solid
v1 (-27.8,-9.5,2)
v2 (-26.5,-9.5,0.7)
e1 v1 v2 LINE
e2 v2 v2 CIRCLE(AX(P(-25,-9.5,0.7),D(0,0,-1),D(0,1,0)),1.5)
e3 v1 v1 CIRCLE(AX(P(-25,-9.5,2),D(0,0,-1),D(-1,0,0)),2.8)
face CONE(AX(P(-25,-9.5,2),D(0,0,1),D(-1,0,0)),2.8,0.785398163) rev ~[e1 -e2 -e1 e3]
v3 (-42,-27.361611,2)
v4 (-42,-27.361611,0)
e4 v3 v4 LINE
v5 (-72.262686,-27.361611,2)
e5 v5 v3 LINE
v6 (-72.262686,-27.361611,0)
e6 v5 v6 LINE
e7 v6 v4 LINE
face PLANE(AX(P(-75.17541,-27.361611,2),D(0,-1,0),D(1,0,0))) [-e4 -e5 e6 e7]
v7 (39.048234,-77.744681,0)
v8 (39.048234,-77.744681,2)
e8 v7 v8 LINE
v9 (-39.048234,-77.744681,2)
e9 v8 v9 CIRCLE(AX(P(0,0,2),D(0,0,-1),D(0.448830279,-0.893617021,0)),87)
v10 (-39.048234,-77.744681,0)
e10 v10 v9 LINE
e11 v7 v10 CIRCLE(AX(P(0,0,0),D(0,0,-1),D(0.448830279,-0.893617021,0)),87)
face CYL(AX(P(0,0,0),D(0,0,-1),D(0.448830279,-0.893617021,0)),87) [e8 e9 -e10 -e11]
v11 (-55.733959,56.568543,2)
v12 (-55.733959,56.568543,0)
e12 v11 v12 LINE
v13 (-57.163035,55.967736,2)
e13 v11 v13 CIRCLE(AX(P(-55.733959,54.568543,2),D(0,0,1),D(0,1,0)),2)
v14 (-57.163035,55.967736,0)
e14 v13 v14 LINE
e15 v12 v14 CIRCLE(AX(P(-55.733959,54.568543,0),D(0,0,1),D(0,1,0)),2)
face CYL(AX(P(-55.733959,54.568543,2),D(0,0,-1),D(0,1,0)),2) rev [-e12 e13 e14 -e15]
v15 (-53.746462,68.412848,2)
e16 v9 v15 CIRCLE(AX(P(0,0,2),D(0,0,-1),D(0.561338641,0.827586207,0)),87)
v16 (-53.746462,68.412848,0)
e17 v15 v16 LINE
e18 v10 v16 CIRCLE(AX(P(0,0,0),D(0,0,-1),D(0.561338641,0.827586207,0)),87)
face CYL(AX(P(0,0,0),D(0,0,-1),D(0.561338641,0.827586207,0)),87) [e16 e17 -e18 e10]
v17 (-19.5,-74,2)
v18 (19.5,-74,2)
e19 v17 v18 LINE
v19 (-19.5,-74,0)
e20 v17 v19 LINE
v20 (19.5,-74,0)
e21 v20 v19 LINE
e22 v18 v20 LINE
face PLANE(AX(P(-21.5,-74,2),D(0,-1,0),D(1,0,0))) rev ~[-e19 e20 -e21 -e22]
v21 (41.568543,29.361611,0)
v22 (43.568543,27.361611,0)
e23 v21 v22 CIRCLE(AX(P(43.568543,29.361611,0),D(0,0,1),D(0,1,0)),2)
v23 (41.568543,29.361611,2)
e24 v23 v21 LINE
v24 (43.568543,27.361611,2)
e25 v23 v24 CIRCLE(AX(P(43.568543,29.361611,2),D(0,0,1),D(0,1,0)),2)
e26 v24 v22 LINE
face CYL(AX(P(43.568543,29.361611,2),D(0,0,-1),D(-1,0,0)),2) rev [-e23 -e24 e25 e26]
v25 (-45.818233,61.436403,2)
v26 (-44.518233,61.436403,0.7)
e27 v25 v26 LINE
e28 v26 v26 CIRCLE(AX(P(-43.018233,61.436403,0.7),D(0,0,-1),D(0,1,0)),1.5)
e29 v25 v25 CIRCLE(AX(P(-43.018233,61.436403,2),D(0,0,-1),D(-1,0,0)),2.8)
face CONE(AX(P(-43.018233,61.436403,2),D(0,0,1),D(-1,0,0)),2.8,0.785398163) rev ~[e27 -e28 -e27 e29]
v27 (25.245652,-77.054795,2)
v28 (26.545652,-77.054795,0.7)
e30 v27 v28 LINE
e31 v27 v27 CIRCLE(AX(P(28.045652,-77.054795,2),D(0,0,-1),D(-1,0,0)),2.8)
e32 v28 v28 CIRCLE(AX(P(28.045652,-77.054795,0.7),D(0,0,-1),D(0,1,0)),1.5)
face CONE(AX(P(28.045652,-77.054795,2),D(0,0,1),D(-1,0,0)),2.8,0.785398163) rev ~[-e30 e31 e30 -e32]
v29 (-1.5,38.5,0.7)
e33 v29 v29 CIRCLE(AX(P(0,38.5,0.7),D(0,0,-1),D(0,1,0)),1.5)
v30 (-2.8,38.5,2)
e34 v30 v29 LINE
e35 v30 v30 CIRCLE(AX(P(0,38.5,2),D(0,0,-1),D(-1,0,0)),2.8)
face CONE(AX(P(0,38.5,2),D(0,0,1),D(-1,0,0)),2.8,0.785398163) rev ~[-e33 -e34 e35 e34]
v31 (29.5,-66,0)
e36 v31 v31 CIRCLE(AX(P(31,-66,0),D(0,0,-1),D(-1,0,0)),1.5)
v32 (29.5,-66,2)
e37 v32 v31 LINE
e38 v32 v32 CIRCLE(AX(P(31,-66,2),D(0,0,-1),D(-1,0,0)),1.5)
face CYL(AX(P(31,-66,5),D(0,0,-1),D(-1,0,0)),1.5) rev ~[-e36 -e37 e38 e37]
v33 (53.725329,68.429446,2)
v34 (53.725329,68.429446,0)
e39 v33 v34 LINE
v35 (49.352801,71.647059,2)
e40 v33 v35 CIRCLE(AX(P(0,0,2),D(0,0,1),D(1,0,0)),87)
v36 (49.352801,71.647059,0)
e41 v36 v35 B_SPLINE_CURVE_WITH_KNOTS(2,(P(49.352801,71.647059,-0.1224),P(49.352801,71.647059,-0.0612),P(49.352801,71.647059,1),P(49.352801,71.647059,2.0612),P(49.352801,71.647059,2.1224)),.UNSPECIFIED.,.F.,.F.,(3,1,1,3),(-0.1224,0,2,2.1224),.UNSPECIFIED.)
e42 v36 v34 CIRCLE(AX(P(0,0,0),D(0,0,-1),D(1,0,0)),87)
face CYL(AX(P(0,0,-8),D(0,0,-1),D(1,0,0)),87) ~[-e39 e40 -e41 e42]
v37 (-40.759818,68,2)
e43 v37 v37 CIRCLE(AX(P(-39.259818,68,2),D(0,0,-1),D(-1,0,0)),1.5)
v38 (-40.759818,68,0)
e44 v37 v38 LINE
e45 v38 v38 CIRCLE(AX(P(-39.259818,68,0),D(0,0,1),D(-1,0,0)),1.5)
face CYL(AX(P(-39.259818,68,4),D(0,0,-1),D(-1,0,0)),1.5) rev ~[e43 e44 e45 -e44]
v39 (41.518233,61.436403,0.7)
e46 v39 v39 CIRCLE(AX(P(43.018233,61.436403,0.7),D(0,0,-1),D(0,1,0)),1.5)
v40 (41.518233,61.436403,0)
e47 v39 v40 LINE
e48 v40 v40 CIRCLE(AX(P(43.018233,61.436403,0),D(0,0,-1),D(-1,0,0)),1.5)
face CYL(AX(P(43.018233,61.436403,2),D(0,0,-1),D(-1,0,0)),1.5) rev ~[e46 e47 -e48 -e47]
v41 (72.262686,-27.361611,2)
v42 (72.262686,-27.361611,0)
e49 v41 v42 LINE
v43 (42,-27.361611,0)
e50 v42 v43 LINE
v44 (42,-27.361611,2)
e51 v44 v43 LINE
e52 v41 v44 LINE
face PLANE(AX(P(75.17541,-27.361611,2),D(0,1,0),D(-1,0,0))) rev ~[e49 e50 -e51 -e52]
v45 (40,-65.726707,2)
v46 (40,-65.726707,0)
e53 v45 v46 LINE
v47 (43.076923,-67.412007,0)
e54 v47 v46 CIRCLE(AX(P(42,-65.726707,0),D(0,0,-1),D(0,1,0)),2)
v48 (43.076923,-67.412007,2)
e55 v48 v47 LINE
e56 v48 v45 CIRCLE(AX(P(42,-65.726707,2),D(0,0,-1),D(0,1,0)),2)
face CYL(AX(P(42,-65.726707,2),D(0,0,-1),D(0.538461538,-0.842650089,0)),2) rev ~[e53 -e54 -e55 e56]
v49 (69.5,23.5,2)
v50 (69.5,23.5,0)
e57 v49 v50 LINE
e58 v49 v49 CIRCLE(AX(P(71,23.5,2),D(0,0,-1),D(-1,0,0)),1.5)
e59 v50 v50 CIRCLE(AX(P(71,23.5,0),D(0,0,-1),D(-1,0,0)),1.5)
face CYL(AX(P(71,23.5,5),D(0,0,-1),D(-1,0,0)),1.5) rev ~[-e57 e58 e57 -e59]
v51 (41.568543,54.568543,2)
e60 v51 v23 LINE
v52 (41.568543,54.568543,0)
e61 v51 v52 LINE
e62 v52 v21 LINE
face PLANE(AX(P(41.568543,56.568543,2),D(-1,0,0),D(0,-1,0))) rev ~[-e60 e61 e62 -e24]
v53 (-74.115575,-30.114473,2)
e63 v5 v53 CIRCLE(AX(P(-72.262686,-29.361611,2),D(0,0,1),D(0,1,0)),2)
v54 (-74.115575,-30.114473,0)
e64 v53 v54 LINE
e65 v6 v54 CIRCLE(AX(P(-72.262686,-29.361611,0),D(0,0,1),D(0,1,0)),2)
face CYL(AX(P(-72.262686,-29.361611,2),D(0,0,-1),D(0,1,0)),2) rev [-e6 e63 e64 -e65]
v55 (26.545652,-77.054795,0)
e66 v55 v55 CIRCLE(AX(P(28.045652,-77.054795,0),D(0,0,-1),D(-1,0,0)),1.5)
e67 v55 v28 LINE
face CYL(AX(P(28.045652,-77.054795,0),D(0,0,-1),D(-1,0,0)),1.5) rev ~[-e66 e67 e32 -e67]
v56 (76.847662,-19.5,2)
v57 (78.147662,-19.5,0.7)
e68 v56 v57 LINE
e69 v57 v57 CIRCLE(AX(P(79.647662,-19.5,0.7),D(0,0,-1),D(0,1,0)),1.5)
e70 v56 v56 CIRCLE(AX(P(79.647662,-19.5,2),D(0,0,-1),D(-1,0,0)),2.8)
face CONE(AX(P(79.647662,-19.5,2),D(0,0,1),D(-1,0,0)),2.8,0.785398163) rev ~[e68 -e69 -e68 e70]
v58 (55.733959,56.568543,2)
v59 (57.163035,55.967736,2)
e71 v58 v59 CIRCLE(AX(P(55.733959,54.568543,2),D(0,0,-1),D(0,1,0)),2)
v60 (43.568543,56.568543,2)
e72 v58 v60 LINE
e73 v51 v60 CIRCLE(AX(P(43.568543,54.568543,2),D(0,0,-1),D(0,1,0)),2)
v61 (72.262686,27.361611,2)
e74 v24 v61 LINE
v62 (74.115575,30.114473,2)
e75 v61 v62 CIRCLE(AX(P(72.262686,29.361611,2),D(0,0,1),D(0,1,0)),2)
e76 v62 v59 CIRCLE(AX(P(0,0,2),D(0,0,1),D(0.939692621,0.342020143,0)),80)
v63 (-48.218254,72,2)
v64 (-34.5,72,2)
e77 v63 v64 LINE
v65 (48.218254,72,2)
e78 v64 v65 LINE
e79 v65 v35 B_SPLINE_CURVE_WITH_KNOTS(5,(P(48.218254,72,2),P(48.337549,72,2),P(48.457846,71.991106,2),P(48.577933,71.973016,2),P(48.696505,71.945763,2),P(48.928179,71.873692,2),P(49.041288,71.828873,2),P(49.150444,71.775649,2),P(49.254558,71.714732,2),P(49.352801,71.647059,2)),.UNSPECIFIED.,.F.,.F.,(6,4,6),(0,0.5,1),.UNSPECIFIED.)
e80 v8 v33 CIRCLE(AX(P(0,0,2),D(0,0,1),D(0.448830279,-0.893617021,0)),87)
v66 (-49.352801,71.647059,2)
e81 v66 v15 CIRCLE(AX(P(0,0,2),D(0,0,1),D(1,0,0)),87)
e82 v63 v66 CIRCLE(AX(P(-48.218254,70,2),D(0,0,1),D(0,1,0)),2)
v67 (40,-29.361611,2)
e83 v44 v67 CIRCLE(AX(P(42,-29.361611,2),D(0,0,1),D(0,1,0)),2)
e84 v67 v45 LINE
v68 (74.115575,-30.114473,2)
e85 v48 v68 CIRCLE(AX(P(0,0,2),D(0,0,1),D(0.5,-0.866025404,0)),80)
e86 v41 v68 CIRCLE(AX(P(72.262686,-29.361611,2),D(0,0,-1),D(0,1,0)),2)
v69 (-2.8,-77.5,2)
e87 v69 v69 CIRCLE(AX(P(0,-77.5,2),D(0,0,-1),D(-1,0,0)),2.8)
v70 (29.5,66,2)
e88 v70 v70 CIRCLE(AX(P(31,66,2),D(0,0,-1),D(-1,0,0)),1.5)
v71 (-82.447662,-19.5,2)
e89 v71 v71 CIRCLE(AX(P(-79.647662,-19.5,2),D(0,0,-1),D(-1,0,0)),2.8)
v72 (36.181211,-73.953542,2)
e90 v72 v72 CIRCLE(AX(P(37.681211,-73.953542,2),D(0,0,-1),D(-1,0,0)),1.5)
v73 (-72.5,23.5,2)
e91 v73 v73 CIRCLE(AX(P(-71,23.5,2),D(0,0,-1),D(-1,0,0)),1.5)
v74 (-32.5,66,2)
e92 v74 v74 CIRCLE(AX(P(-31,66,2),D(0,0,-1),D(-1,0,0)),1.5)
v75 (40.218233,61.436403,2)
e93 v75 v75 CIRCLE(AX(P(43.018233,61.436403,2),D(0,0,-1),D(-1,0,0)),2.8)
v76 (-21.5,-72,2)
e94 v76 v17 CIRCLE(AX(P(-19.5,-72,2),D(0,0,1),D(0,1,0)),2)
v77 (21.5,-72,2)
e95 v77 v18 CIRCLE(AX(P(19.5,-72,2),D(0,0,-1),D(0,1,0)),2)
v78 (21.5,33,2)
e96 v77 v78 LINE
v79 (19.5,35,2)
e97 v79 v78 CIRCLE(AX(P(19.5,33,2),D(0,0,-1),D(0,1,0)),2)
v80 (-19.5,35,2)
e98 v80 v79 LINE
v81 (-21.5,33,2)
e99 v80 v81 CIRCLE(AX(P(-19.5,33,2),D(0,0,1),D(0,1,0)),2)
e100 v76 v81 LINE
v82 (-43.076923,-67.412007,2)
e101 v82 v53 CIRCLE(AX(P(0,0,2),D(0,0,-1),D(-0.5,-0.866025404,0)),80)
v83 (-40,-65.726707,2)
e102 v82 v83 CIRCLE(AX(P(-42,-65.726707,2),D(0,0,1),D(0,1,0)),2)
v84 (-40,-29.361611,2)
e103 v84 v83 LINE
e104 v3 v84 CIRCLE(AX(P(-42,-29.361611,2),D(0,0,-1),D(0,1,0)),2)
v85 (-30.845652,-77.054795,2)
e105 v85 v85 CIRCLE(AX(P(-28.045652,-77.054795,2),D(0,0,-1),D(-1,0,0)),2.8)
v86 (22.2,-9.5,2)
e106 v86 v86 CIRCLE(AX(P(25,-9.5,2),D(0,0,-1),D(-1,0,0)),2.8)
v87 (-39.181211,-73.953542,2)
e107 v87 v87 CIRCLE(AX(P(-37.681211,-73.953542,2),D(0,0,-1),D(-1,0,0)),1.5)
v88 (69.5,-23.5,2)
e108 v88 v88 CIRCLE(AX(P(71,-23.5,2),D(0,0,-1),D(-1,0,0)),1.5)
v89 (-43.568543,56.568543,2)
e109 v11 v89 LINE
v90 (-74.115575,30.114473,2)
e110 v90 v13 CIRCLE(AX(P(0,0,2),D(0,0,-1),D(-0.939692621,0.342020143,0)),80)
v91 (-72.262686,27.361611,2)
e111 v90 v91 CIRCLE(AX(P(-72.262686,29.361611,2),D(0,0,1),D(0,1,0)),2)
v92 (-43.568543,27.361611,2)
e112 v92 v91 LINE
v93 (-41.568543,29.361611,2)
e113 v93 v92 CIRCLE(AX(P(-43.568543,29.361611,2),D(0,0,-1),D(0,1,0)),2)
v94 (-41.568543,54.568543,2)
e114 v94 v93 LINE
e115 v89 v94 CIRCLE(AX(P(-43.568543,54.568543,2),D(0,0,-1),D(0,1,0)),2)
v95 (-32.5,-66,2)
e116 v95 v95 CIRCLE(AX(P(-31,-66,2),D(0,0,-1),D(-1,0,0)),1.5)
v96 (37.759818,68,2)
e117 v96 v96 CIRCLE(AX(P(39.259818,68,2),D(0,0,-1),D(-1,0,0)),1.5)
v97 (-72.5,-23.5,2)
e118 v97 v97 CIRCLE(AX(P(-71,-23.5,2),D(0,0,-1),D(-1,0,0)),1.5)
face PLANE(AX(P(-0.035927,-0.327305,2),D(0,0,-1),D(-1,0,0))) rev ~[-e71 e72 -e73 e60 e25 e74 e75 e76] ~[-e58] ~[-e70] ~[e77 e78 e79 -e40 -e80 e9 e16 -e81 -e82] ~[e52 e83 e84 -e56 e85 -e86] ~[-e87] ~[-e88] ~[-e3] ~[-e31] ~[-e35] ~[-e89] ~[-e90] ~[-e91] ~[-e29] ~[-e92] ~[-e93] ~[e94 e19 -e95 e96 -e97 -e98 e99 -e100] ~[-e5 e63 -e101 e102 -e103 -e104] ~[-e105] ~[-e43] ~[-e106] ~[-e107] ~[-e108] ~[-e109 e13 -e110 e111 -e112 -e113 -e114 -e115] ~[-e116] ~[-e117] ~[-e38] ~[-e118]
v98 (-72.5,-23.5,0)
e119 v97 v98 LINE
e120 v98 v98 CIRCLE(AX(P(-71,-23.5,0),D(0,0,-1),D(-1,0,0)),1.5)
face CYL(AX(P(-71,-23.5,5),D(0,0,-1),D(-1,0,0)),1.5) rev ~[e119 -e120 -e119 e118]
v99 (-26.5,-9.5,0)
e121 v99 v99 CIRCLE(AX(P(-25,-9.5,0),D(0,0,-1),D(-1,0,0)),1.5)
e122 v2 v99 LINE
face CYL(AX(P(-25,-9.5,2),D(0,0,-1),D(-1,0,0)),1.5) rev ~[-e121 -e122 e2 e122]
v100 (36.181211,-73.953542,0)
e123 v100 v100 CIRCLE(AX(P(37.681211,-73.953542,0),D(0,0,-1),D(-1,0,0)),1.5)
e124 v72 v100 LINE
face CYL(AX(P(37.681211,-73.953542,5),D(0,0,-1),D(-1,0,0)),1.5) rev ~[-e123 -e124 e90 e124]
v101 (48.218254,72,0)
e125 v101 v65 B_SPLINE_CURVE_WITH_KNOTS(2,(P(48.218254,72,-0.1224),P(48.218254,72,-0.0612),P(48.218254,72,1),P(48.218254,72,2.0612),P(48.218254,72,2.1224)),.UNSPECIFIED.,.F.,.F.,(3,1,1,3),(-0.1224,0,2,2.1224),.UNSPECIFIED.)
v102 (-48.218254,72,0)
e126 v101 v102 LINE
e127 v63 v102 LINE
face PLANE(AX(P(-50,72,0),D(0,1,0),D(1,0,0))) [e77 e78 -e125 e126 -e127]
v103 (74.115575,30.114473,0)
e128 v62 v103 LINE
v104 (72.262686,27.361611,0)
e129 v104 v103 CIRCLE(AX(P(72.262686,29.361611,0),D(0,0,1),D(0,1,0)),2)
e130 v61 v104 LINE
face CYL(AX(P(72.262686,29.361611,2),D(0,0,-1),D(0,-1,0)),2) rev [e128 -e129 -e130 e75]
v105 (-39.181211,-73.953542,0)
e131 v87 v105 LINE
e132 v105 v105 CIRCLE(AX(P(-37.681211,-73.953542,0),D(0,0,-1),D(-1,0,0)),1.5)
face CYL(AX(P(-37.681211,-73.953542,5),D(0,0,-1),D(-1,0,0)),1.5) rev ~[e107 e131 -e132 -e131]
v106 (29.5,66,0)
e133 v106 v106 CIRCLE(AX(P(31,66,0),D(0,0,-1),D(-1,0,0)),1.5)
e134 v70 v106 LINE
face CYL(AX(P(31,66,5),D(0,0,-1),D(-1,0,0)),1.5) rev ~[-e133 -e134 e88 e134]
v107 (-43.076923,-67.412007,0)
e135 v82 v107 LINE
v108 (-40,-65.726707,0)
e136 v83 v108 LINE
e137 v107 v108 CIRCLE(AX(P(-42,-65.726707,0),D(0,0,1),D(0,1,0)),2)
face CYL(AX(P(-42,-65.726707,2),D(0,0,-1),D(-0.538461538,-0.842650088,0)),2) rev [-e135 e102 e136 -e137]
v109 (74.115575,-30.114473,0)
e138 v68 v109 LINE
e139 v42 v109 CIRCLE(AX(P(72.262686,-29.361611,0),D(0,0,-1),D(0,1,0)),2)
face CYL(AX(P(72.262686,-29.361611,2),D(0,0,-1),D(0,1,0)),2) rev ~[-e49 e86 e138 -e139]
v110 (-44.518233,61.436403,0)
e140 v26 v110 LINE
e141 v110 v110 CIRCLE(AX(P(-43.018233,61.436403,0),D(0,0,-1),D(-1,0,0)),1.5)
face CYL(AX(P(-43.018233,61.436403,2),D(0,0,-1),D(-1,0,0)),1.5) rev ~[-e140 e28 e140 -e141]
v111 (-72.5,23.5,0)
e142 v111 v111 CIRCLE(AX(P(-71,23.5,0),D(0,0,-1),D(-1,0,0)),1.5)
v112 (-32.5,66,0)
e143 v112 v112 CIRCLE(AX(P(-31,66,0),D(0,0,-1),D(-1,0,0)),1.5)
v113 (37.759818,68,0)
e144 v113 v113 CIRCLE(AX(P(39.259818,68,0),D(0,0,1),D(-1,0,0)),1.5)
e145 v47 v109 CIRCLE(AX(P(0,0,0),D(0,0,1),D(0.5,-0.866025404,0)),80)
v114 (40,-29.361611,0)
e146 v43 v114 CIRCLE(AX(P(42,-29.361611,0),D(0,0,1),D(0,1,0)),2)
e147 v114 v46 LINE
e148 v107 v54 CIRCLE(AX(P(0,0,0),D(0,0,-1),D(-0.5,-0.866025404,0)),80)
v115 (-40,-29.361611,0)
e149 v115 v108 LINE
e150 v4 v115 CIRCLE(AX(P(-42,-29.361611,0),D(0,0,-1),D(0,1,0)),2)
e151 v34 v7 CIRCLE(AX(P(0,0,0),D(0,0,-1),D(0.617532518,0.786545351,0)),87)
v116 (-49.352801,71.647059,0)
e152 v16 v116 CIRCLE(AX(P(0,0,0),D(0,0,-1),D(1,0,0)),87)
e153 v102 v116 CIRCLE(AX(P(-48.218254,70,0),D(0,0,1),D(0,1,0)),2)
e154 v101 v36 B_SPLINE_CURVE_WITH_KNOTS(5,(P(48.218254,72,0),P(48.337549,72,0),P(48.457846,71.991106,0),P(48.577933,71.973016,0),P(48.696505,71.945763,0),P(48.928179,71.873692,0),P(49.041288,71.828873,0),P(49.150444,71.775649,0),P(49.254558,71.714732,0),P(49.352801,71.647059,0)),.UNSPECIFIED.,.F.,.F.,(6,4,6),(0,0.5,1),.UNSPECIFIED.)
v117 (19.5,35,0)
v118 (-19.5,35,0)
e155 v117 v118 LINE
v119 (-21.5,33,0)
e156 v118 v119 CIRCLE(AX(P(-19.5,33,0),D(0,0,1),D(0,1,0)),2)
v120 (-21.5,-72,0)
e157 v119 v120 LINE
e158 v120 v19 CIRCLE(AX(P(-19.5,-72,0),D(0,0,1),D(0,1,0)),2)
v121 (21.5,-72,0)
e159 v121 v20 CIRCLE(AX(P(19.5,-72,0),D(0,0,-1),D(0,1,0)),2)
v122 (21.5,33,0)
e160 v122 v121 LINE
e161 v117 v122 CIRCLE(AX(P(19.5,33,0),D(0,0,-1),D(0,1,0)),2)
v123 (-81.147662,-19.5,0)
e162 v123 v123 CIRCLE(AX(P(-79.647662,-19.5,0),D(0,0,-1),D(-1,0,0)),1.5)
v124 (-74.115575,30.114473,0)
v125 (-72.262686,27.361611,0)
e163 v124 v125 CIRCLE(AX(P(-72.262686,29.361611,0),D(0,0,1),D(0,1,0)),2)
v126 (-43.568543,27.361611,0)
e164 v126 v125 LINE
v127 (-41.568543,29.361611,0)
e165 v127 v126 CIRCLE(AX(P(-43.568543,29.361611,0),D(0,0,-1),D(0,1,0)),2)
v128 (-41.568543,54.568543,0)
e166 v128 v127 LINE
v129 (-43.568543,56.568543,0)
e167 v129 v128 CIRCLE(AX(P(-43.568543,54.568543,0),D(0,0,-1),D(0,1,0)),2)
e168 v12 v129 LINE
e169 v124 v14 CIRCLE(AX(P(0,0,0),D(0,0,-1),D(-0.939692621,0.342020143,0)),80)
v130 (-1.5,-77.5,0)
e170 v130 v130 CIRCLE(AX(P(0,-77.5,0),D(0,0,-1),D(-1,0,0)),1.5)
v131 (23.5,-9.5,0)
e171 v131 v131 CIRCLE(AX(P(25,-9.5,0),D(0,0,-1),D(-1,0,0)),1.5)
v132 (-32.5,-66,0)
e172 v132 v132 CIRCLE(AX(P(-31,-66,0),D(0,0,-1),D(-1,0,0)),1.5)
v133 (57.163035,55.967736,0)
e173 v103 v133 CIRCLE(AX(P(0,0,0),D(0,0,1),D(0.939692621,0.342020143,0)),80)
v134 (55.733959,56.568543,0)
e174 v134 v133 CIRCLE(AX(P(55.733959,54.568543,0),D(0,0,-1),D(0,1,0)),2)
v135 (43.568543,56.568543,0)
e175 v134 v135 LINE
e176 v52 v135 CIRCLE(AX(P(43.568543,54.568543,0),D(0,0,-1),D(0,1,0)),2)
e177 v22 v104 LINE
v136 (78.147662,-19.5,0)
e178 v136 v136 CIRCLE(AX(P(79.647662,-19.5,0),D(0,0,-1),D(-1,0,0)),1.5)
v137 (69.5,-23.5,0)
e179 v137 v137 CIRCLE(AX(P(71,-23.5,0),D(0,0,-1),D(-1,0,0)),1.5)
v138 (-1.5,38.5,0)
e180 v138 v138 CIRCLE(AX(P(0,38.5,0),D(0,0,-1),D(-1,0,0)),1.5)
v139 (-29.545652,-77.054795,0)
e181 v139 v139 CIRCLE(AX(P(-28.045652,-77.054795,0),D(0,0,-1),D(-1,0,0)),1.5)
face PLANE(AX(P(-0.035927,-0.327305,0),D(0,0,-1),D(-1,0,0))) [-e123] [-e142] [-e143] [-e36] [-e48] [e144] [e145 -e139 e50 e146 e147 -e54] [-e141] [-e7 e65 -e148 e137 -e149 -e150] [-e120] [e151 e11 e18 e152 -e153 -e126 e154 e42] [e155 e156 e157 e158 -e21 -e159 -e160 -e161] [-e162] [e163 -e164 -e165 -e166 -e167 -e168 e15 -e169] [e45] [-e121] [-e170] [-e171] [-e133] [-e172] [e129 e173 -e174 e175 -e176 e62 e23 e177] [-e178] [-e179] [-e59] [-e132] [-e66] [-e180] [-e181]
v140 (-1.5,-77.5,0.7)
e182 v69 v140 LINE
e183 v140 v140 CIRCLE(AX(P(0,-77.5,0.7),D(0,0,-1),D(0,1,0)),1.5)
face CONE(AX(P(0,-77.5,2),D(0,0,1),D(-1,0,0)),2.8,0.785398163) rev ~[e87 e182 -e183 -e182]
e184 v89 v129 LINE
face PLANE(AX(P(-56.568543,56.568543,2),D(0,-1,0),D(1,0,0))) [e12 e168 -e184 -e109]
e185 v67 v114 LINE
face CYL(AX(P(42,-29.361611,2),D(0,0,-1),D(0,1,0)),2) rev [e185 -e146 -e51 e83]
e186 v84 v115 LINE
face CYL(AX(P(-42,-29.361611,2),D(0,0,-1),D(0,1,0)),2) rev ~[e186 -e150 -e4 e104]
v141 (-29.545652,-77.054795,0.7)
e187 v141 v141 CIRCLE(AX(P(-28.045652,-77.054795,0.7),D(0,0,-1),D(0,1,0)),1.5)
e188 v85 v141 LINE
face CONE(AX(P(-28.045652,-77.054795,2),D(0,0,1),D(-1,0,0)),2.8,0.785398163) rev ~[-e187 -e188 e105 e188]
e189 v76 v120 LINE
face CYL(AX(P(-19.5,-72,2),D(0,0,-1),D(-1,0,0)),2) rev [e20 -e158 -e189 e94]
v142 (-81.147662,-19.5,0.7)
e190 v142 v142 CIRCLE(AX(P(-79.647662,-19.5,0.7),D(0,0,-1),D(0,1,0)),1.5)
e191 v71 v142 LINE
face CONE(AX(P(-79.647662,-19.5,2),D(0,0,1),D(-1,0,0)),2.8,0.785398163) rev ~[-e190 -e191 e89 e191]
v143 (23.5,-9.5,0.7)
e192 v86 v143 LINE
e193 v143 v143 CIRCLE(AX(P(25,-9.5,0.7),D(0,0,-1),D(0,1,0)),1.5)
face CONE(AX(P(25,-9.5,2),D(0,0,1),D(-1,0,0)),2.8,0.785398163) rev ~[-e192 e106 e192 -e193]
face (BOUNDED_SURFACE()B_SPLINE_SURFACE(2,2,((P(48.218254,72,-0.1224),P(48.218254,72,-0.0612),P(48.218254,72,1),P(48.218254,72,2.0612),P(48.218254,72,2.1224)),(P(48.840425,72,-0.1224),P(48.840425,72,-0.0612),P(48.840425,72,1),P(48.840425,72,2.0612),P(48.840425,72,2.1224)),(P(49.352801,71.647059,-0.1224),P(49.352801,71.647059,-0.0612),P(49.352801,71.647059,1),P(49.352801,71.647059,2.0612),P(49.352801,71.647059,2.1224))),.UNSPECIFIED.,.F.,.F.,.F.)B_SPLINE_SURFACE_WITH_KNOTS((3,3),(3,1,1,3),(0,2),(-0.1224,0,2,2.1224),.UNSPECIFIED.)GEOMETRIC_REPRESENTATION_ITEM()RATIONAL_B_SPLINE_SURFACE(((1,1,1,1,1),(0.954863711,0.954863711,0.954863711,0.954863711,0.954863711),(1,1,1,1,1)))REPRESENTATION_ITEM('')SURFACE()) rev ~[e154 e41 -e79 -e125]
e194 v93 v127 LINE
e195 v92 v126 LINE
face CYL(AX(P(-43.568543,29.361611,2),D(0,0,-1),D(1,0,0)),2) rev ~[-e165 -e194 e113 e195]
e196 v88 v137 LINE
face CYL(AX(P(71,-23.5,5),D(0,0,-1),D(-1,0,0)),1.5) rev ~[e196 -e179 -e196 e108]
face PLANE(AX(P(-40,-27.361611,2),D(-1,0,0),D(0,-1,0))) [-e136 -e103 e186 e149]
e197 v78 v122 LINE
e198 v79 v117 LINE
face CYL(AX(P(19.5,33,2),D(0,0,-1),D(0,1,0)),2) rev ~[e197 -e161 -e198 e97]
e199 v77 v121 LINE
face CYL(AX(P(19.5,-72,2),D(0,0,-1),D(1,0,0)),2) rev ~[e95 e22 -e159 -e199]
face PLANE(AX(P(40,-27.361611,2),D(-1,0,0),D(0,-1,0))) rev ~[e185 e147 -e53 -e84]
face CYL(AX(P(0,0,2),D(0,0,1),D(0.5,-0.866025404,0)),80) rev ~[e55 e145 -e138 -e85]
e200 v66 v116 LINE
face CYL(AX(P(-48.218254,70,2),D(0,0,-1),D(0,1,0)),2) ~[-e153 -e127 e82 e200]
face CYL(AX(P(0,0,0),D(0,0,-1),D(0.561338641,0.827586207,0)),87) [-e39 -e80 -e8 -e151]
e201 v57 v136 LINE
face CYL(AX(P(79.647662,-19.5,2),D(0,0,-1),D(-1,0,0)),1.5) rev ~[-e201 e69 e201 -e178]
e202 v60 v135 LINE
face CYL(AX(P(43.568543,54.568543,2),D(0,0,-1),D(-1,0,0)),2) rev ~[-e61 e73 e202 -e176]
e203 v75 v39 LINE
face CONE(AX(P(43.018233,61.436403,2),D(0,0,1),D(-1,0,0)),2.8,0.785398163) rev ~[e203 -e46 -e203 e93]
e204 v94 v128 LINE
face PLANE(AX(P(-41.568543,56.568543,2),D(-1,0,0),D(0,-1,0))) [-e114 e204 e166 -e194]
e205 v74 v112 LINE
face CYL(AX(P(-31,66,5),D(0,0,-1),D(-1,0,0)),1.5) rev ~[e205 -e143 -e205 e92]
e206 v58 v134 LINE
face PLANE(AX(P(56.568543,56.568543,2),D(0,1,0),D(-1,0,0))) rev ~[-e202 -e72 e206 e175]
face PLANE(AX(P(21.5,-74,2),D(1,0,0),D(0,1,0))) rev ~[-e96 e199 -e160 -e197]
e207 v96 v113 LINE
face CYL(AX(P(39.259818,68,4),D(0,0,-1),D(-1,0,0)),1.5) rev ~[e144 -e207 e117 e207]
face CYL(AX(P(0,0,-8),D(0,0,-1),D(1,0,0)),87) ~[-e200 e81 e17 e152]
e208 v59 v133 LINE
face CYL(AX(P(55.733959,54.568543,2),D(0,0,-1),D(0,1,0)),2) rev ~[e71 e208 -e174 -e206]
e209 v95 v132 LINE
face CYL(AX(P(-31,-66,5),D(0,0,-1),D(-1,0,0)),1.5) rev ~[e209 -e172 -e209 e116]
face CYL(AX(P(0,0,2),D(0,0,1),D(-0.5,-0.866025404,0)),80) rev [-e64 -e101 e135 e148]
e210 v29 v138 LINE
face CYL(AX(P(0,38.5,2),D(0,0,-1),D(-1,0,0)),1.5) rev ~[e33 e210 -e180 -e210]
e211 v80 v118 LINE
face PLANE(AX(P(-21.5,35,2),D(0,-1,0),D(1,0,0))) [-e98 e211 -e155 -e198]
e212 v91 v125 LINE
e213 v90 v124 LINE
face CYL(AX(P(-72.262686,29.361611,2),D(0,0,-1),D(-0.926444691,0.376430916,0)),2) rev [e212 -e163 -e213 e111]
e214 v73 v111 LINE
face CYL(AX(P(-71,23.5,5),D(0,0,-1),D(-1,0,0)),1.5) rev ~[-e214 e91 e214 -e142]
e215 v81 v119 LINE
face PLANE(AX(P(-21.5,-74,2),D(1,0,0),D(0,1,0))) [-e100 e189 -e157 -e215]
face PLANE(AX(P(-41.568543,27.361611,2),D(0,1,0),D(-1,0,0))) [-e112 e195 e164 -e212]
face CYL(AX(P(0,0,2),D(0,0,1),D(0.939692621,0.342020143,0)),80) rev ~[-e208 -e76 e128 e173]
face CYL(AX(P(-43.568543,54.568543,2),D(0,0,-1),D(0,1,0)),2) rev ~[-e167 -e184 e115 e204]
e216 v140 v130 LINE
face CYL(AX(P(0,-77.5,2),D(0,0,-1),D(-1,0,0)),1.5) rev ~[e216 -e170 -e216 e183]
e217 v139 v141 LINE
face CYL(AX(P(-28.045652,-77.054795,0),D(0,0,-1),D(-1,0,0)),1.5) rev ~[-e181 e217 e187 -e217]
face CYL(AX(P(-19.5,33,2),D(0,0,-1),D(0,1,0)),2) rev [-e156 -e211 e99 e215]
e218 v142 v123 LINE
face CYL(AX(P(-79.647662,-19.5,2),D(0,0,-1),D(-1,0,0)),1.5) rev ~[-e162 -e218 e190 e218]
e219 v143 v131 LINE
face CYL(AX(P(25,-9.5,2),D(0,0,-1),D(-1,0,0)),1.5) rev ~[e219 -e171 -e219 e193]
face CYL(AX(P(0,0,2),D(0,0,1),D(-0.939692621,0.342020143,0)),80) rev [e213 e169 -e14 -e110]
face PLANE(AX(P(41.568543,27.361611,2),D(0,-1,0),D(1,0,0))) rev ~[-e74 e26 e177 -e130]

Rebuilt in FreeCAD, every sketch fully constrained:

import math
import FreeCAD as App
import Part
import Sketcher
from FreeCAD import Vector
Q = App.Units.Quantity


def edges_at(feature, points):
    """Names of the edges that pass closest to the given points."""
    edges = feature.Shape.Edges
    near = lambda p: min(range(len(edges)), key=lambda i: edges[i].distToShape(Part.Vertex(*p))[0])
    return sorted({f"Edge{near(p) + 1}" for p in points})


def add_polygon(sketch, points):
    """Adds a closed chain of lines whose ends are joined by coincident constraints."""
    first, n = sketch.GeometryCount, len(points)
    for a, b in zip(points, points[1:] + points[:1]):
        sketch.addGeometry(Part.LineSegment(App.Vector(*a, 0), App.Vector(*b, 0)), False)
    for i in range(n):
        sketch.addConstraint(Sketcher.Constraint("Coincident", first + i, 2, first + (i + 1) % n, 1))

doc = App.newDocument("Part")
body = doc.addObject("PartDesign::Body", "Body")

# Sketch on XY plane
sketch1 = body.newObject("Sketcher::SketchObject", "Sketch")
sketch1.AttachmentSupport = (doc.getObject("XY_Plane"), [""])
sketch1.MapMode = "FlatFace"
sketch1.addGeometry([
    Part.LineSegment(Vector(-50, 72, 0), Vector(-34.5, 72, 0)),  # 0
    Part.ArcOfCircle(Part.Circle(Vector(-34.5, 70, 0), Vector(0, 0, 1), 2), math.radians(0), math.radians(90)),  # 1
    Part.LineSegment(Vector(-32.5, 70, 0), Vector(-32.5, 50.7, 0)),  # 2
    Part.ArcOfCircle(Part.Circle(Vector(-30.5, 50.7, 0), Vector(0, 0, 1), 2), math.radians(-180), math.radians(-90)),  # 3
    Part.LineSegment(Vector(-30.5, 48.8, 0), Vector(30.5, 48.8, 0)),  # 4
    Part.ArcOfCircle(Part.Circle(Vector(30.5, 50.7, 0), Vector(0, 0, 1), 2), math.radians(-90), math.radians(0)),  # 5
    Part.LineSegment(Vector(32.5, 50.7, 0), Vector(32.5, 69.7, 0)),  # 6
    Part.ArcOfCircle(Part.Circle(Vector(34.5, 69.7, 0), Vector(0, 0, 1), 2), math.radians(90), math.radians(180)),  # 7
    Part.LineSegment(Vector(34.5, 71.7, 0), Vector(50, 71.7, 0)),  # 8
    Part.ArcOfCircle(Part.Circle(Vector(50, 68, 0), Vector(0, 0, 1), 3.7), math.radians(0), math.radians(90)),  # 9
    Part.LineSegment(Vector(53.8, 68, 0), Vector(53.8, 40.7, 0)),  # 10
    Part.ArcOfCircle(Part.Circle(Vector(51.8, 40.7, 0), Vector(0, 0, 1), 2), math.radians(-90), math.radians(0)),  # 11
    Part.LineSegment(Vector(51.8, 38.8, 0), Vector(39, 38.8, 0)),  # 12
    Part.ArcOfCircle(Part.Circle(Vector(39, 34.7, 0), Vector(0, 0, 1), 4), math.radians(90), math.radians(180)),  # 13
    Part.LineSegment(Vector(35, 34.8, 0), Vector(35, -46, 0)),  # 14
    Part.ArcOfCircle(Part.Circle(Vector(39, -46, 0), Vector(0, 0, 1), 4), math.radians(180), math.radians(270)),  # 15
    Part.LineSegment(Vector(39, -50, 0), Vector(45.1, -50, 0)),  # 16
    Part.ArcOfCircle(Part.Circle(Vector(45.1, -60, 0), Vector(0, 0, 1), 10), math.radians(-37), math.radians(90)),  # 17
    Part.ArcOfCircle(Part.Circle(Vector(21.1, -42, 0), Vector(0, 0, 1), 40), math.radians(-63), math.radians(-37)),  # 18
    Part.ArcOfCircle(Part.Circle(Vector(0, 0, 0), Vector(0, 0, 1), 87), math.radians(-117), math.radians(-63)),  # 19
    Part.ArcOfCircle(Part.Circle(Vector(-21.1, -42, 0), Vector(0, 0, 1), 40), math.radians(-143), math.radians(-117)),  # 20
    Part.ArcOfCircle(Part.Circle(Vector(-45.1, -60, 0), Vector(0, 0, 1), 10), math.radians(90), math.radians(217)),  # 21
    Part.LineSegment(Vector(-45.1, -50, 0), Vector(-39, -50, 0)),  # 22
    Part.ArcOfCircle(Part.Circle(Vector(-39, -46, 0), Vector(0, 0, 1), 4), math.radians(-90), math.radians(0)),  # 23
    Part.LineSegment(Vector(-35, -46, 0), Vector(-35, 34.8, 0)),  # 24
    Part.ArcOfCircle(Part.Circle(Vector(-39, 34.7, 0), Vector(0, 0, 1), 4), math.radians(0), math.radians(90)),  # 25
    Part.LineSegment(Vector(-39, 38.8, 0), Vector(-51.8, 38.8, 0)),  # 26
    Part.ArcOfCircle(Part.Circle(Vector(-51.8, 40.7, 0), Vector(0, 0, 1), 2), math.radians(-180), math.radians(-90)),  # 27
    Part.LineSegment(Vector(-53.7, 40.7, 0), Vector(-53.7, 68.3, 0)),  # 28
    Part.ArcOfCircle(Part.Circle(Vector(-50, 68.3, 0), Vector(0, 0, 1), 3.7), math.radians(90), math.radians(180)),  # 29
    Part.Circle(Vector(28, -77.1, 0), Vector(0, 0, 1), 1.5),  # 30
    Part.Circle(Vector(-28, -77.1, 0), Vector(0, 0, 1), 1.5),  # 31
    Part.Circle(Vector(49.3, 65.5, 0), Vector(0, 0, 1), 1.5),  # 32
    Part.Circle(Vector(-49.3, 65.5, 0), Vector(0, 0, 1), 1.5),  # 33
], False)
sketch1.addConstraint([
    Sketcher.Constraint("Tangent", 0, 2, 1, 2),
    Sketcher.Constraint("Tangent", 1, 1, 2, 1),
    Sketcher.Constraint("Tangent", 2, 2, 3, 1),
    Sketcher.Constraint("Tangent", 3, 2, 4, 1),
    Sketcher.Constraint("Tangent", 4, 2, 5, 1),
    Sketcher.Constraint("Tangent", 5, 2, 6, 1),
    Sketcher.Constraint("Tangent", 6, 2, 7, 2),
    Sketcher.Constraint("Tangent", 7, 1, 8, 1),
    Sketcher.Constraint("Tangent", 8, 2, 9, 2),
    Sketcher.Constraint("Tangent", 9, 1, 10, 1),
    Sketcher.Constraint("Tangent", 10, 2, 11, 2),
    Sketcher.Constraint("Tangent", 11, 1, 12, 1),
    Sketcher.Constraint("Tangent", 12, 2, 13, 1),
    Sketcher.Constraint("Tangent", 13, 2, 14, 1),
    Sketcher.Constraint("Tangent", 14, 2, 15, 1),
    Sketcher.Constraint("Tangent", 15, 2, 16, 1),
    Sketcher.Constraint("Tangent", 16, 2, 17, 2),
    Sketcher.Constraint("Tangent", 17, 1, 18, 2),
    Sketcher.Constraint("Tangent", 18, 1, 19, 2),
    Sketcher.Constraint("Tangent", 19, 1, 20, 2),
    Sketcher.Constraint("Tangent", 20, 1, 21, 2),
    Sketcher.Constraint("Tangent", 21, 1, 22, 1),
    Sketcher.Constraint("Tangent", 22, 2, 23, 1),
    Sketcher.Constraint("Tangent", 23, 2, 24, 1),
    Sketcher.Constraint("Tangent", 24, 2, 25, 1),
    Sketcher.Constraint("Tangent", 25, 2, 26, 1),
    Sketcher.Constraint("Tangent", 26, 2, 27, 2),
    Sketcher.Constraint("Tangent", 27, 1, 28, 1),
    Sketcher.Constraint("Tangent", 28, 2, 29, 2),
    Sketcher.Constraint("Tangent", 29, 1, 0, 1),
    Sketcher.Constraint("Horizontal", 0),
    Sketcher.Constraint("Vertical", 2),
    Sketcher.Constraint("Horizontal", 4),
    Sketcher.Constraint("Vertical", 6),
    Sketcher.Constraint("Horizontal", 8),
    Sketcher.Constraint("Vertical", 10),
    Sketcher.Constraint("Horizontal", 12),
    Sketcher.Constraint("Vertical", 14),
    Sketcher.Constraint("Horizontal", 16),
    Sketcher.Constraint("Horizontal", 22),
    Sketcher.Constraint("Vertical", 24),
    Sketcher.Constraint("Horizontal", 26),
    Sketcher.Constraint("Vertical", 28),
    Sketcher.Constraint("Coincident", 19, 3, -1, 1),
    Sketcher.Constraint("Equal", 1, 3),
    Sketcher.Constraint("Equal", 3, 5),
    Sketcher.Constraint("Equal", 5, 7),
    Sketcher.Constraint("Equal", 7, 11),
    Sketcher.Constraint("Equal", 13, 15),
    Sketcher.Constraint("Equal", 18, 20),
    Sketcher.Constraint("Equal", 17, 21),
    Sketcher.Constraint("Equal", 15, 23),
    Sketcher.Constraint("Equal", 23, 25),
    Sketcher.Constraint("Equal", 11, 27),
    Sketcher.Constraint("Equal", 9, 29),
    Sketcher.Constraint("Equal", 30, 31),
    Sketcher.Constraint("Equal", 31, 32),
    Sketcher.Constraint("Equal", 32, 33),
    Sketcher.Constraint("Symmetric", 17, 3, 21, 3, -2),
    Sketcher.Constraint("Symmetric", 13, 3, 25, 3, -2),
    Sketcher.Constraint("Symmetric", 30, 3, 31, 3, -2),
    Sketcher.Constraint("Symmetric", 32, 3, 33, 3, -2),
    Sketcher.Constraint("Equal", 0, 8),
    Sketcher.Constraint("Equal", 12, 26),
    Sketcher.Constraint("Diameter", 30, Q("3 mm")),
    Sketcher.Constraint("Radius", 1, Q("2 mm")),
    Sketcher.Constraint("Radius", 13, Q("4 mm")),
    Sketcher.Constraint("Radius", 17, Q("10 mm")),
    Sketcher.Constraint("Radius", 18, Q("40 mm")),
    Sketcher.Constraint("Radius", 19, Q("87 mm")),
    Sketcher.Constraint("DistanceX", 4, 1, 4, 2, Q("61 mm")),
    Sketcher.Constraint("DistanceY", 6, 1, 6, 2, Q("19 mm")),
    Sketcher.Constraint("Radius", 9, Q("3.75 mm")),
    Sketcher.Constraint("DistanceX", 0, 1, 0, 2, Q("15.5 mm")),
    Sketcher.Constraint("DistanceY", 28, 1, 28, 2, Q("27.5 mm")),
    Sketcher.Constraint("DistanceY", -1, 1, 1, 3, Q("70 mm")),
    Sketcher.Constraint("DistanceY", -1, 1, 9, 3, Q("68 mm")),
    Sketcher.Constraint("DistanceX", -1, 1, 13, 3, Q("39 mm")),
    Sketcher.Constraint("DistanceY", 15, 3, -1, 1, Q("46 mm")),
    Sketcher.Constraint("DistanceY", 18, 3, -1, 1, Q("42 mm")),
    Sketcher.Constraint("DistanceX", -1, 1, 30, 3, Q("28.045652 mm")),
    Sketcher.Constraint("DistanceX", -1, 1, 32, 3, Q("49.348832 mm")),
    Sketcher.Constraint("DistanceY", -1, 1, 32, 3, Q("65.488112 mm")),
    Sketcher.Constraint("DistanceY", 30, 3, -1, 1, Q("77.054795 mm")),
])
pad1 = body.newObject("PartDesign::Pad", "Pad")
pad1.Profile = sketch1
pad1.Length = 2

# Sketch on XY plane
sketch2 = body.newObject("Sketcher::SketchObject", "Sketch001")
sketch2.AttachmentSupport = (doc.getObject("XY_Plane"), [""])
sketch2.MapMode = "FlatFace"
sketch2.AttachmentOffset = App.Placement(Vector(0, 0, 2), App.Rotation())
sketch2.addGeometry([
    Part.Circle(Vector(-39.3, 68, 0), Vector(0, 0, 1), 1.5),
    Part.Circle(Vector(39.3, 68, 0), Vector(0, 0, 1), 1.5),
], False)
sketch2.addConstraint([
    Sketcher.Constraint("Equal", 0, 1),
    Sketcher.Constraint("Symmetric", 0, 3, 1, 3, -2),
    Sketcher.Constraint("Diameter", 0, Q("3 mm")),
    Sketcher.Constraint("DistanceY", -1, 1, 0, 3, Q("68 mm")),
    Sketcher.Constraint("DistanceX", 0, 3, -1, 1, Q("39.259818 mm")),
])
doc.recompute()
hole = body.newObject("PartDesign::Hole", "Hole")
hole.Profile = sketch2
hole.ThreadType = "None"
hole.Diameter = 3
hole.DepthType = "Dimension"
hole.Depth = 2
hole.DrillPoint = "Angled"
hole.DrillPointAngle = 118

# Sketch on XY plane
sketch3 = body.newObject("Sketcher::SketchObject", "Sketch002")
sketch3.AttachmentSupport = (doc.getObject("XY_Plane"), [""])
sketch3.MapMode = "FlatFace"
sketch3.addGeometry([
    Part.LineSegment(Vector(48.8, 72, 0), Vector(-48.8, 72, 0)),  # 0
    Part.ArcOfCircle(Part.Circle(Vector(0, 0, 0), Vector(0, 0, 1), 87), math.radians(124), math.radians(416)),  # 1
    Part.Circle(Vector(28, -77.1, 0), Vector(0, 0, 1), 1.6),  # 2
    Part.Circle(Vector(-28, -77.1, 0), Vector(0, 0, 1), 1.6),  # 3
    Part.Circle(Vector(39.3, 68, 0), Vector(0, 0, 1), 1.6),  # 4
    Part.Circle(Vector(-39.3, 68, 0), Vector(0, 0, 1), 1.6),  # 5
], False)
sketch3.addConstraint([
    Sketcher.Constraint("Coincident", 0, 1, 1, 2),
    Sketcher.Constraint("Coincident", 1, 1, 0, 2),
    Sketcher.Constraint("Horizontal", 0),
    Sketcher.Constraint("Coincident", 1, 3, -1, 1),
    Sketcher.Constraint("Equal", 2, 3),
    Sketcher.Constraint("Equal", 3, 4),
    Sketcher.Constraint("Equal", 4, 5),
    Sketcher.Constraint("Symmetric", 2, 3, 3, 3, -2),
    Sketcher.Constraint("Symmetric", 4, 3, 5, 3, -2),
    Sketcher.Constraint("Radius", 1, Q("87 mm")),
    Sketcher.Constraint("Diameter", 2, Q("3.2 mm")),
    Sketcher.Constraint("DistanceY", -1, 1, 4, 3, Q("68 mm")),
    Sketcher.Constraint("DistanceY", -1, 1, 0, 1, Q("72 mm")),
    Sketcher.Constraint("DistanceX", -1, 1, 2, 3, Q("28.045652 mm")),
    Sketcher.Constraint("DistanceX", -1, 1, 4, 3, Q("39.259818 mm")),
    Sketcher.Constraint("DistanceY", 2, 3, -1, 1, Q("77.054795 mm")),
])
pad2 = body.newObject("PartDesign::Pad", "Pad001")
pad2.Profile = sketch3
pad2.Length = 2

# Sketch on XY plane
sketch4 = body.newObject("Sketcher::SketchObject", "Sketch003")
sketch4.AttachmentSupport = (doc.getObject("XY_Plane"), [""])
sketch4.MapMode = "FlatFace"
sketch4.AttachmentOffset = App.Placement(Vector(0, 0, 2), App.Rotation())
sketch4.addGeometry([
    Part.LineSegment(Vector(-40, -27, 0), Vector(-75, -27, 0)),  # 0
    Part.ArcOfCircle(Part.Circle(Vector(0, 0, 0), Vector(0, 0, 1), 80), math.radians(-160), math.radians(-120)),  # 1
    Part.LineSegment(Vector(-40, -69, 0), Vector(-40, -27, 0)),  # 2
    Part.LineSegment(Vector(42, 27, 0), Vector(75, 27, 0)),  # 3
    Part.ArcOfCircle(Part.Circle(Vector(0, 0, 0), Vector(0, 0, 1), 80), math.radians(20), math.radians(45)),  # 4
    Part.LineSegment(Vector(57, 57, 0), Vector(42, 57, 0)),  # 5
    Part.LineSegment(Vector(42, 57, 0), Vector(42, 27, 0)),  # 6
    Part.LineSegment(Vector(40, -27, 0), Vector(40, -69, 0)),  # 7
    Part.ArcOfCircle(Part.Circle(Vector(0, 0, 0), Vector(0, 0, 1), 80), math.radians(-60), math.radians(-20)),  # 8
    Part.LineSegment(Vector(75, -27, 0), Vector(40, -27, 0)),  # 9
    Part.LineSegment(Vector(-42, 57, 0), Vector(-57, 57, 0)),  # 10
    Part.ArcOfCircle(Part.Circle(Vector(0, 0, 0), Vector(0, 0, 1), 80), math.radians(135), math.radians(160)),  # 11
    Part.LineSegment(Vector(-75, 27, 0), Vector(-42, 27, 0)),  # 12
    Part.LineSegment(Vector(-42, 27, 0), Vector(-42, 57, 0)),  # 13
], False)
sketch4.addConstraint([
    Sketcher.Constraint("Coincident", 0, 2, 1, 1),
    Sketcher.Constraint("Coincident", 1, 2, 2, 1),
    Sketcher.Constraint("Coincident", 2, 2, 0, 1),
    Sketcher.Constraint("Coincident", 3, 2, 4, 1),
    Sketcher.Constraint("Coincident", 4, 2, 5, 1),
    Sketcher.Constraint("Coincident", 5, 2, 6, 1),
    Sketcher.Constraint("Coincident", 6, 2, 3, 1),
    Sketcher.Constraint("Coincident", 7, 2, 8, 1),
    Sketcher.Constraint("Coincident", 8, 2, 9, 1),
    Sketcher.Constraint("Coincident", 9, 2, 7, 1),
    Sketcher.Constraint("Coincident", 10, 2, 11, 1),
    Sketcher.Constraint("Coincident", 11, 2, 12, 1),
    Sketcher.Constraint("Coincident", 12, 2, 13, 1),
    Sketcher.Constraint("Coincident", 13, 2, 10, 1),
    Sketcher.Constraint("Horizontal", 0),
    Sketcher.Constraint("Vertical", 2),
    Sketcher.Constraint("Horizontal", 3),
    Sketcher.Constraint("Horizontal", 5),
    Sketcher.Constraint("Vertical", 6),
    Sketcher.Constraint("Vertical", 7),
    Sketcher.Constraint("Horizontal", 9),
    Sketcher.Constraint("Horizontal", 10),
    Sketcher.Constraint("Horizontal", 12),
    Sketcher.Constraint("Vertical", 13),
    Sketcher.Constraint("Coincident", 1, 3, -1, 1),
    Sketcher.Constraint("Coincident", 4, 3, -1, 1),
    Sketcher.Constraint("Coincident", 8, 3, -1, 1),
    Sketcher.Constraint("Coincident", 11, 3, -1, 1),
    Sketcher.Constraint("Equal", 1, 4),
    Sketcher.Constraint("Equal", 4, 8),
    Sketcher.Constraint("Equal", 8, 11),
    Sketcher.Constraint("Symmetric", 2, 2, 9, 2, -2),
    Sketcher.Constraint("Symmetric", 6, 2, 12, 2, -2),
    Sketcher.Constraint("Horizontal", 5, 2, 10, 2),
    Sketcher.Constraint("Vertical", 3, 2, 8, 2),
    Sketcher.Constraint("Radius", 1, Q("80 mm")),
    Sketcher.Constraint("DistanceX", 5, 2, 5, 1, Q("15 mm")),
    Sketcher.Constraint("DistanceX", 1, 2, -1, 1, Q("40 mm")),
    Sketcher.Constraint("DistanceX", 0, 2, 0, 1, Q("35.17541 mm")),
    Sketcher.Constraint("DistanceY", 6, 2, 6, 1, Q("29.206931 mm")),
])
pocket1 = body.newObject("PartDesign::Pocket", "Pocket")
pocket1.Profile = sketch4
pocket1.Length = 2

# Sketch on XY plane
sketch5 = body.newObject("Sketcher::SketchObject", "Sketch004")
sketch5.AttachmentSupport = (doc.getObject("XY_Plane"), [""])
sketch5.MapMode = "FlatFace"
sketch5.AttachmentOffset = App.Placement(Vector(0, 0, -8), App.Rotation())
sketch5.addGeometry([
    Part.Circle(Vector(0, 0, 0), Vector(0, 0, 1), 97),
    Part.Circle(Vector(0, 0, 0), Vector(0, 0, 1), 87),
], False)
sketch5.addConstraint([
    Sketcher.Constraint("Coincident", 0, 3, -1, 1),
    Sketcher.Constraint("Coincident", 1, 3, -1, 1),
    Sketcher.Constraint("Diameter", 0, Q("194 mm")),
    Sketcher.Constraint("Diameter", 1, Q("174 mm")),
])
pocket2 = body.newObject("PartDesign::Pocket", "Pocket001")
pocket2.Profile = sketch5
pocket2.Length = 10
pocket2.Reversed = True

# Sketch on XY plane
sketch6 = body.newObject("Sketcher::SketchObject", "Sketch005")
sketch6.AttachmentSupport = (doc.getObject("XY_Plane"), [""])
sketch6.MapMode = "FlatFace"
sketch6.AttachmentOffset = App.Placement(Vector(0, 0, 2), App.Rotation())
add_polygon(sketch6, [(-22, 35), (-22, -74), (22, -74), (22, 35)])  # lines 0-3
sketch6.addConstraint([
    Sketcher.Constraint("Vertical", 0),
    Sketcher.Constraint("Horizontal", 1),
    Sketcher.Constraint("Vertical", 2),
    Sketcher.Constraint("Horizontal", 3),
    Sketcher.Constraint("DistanceX", 1, 1, 1, 2, Q("43 mm")),
    Sketcher.Constraint("DistanceY", 0, 2, 0, 1, Q("109 mm")),
    Sketcher.Constraint("DistanceY", 0, 2, -1, 1, Q("74 mm")),
    Sketcher.Constraint("DistanceX", 0, 2, -1, 1, Q("21.5 mm")),
])
pocket3 = body.newObject("PartDesign::Pocket", "Pocket002")
pocket3.Profile = sketch6
pocket3.Length = 10

# Sketch on XY plane
sketch7 = body.newObject("Sketcher::SketchObject", "Sketch006")
sketch7.AttachmentSupport = (doc.getObject("XY_Plane"), [""])
sketch7.MapMode = "FlatFace"
sketch7.AttachmentOffset = App.Placement(Vector(0, 0, 2), App.Rotation())
sketch7.addGeometry([
    Part.Circle(Vector(0, 38.5, 0), Vector(0, 0, 1), 1.5),  # 0
    Part.Circle(Vector(-25, -9.5, 0), Vector(0, 0, 1), 1.5),  # 1
    Part.Circle(Vector(0, -77.5, 0), Vector(0, 0, 1), 1.5),  # 2
    Part.Circle(Vector(-79.6, -19.5, 0), Vector(0, 0, 1), 1.5),  # 3
    Part.Circle(Vector(79.6, -19.5, 0), Vector(0, 0, 1), 1.5),  # 4
    Part.Circle(Vector(-43, 61.4, 0), Vector(0, 0, 1), 1.5),  # 5
    Part.Circle(Vector(-28, -77.1, 0), Vector(0, 0, 1), 1.5),  # 6
    Part.Circle(Vector(43, 61.4, 0), Vector(0, 0, 1), 1.5),  # 7
    Part.Circle(Vector(25, -9.5, 0), Vector(0, 0, 1), 1.5),  # 8
    Part.Circle(Vector(28, -77.1, 0), Vector(0, 0, 1), 1.5),  # 9
], False)
sketch7.addConstraint([
    Sketcher.Constraint("Equal", 0, 1),
    Sketcher.Constraint("Equal", 1, 2),
    Sketcher.Constraint("Equal", 2, 3),
    Sketcher.Constraint("Equal", 3, 4),
    Sketcher.Constraint("Equal", 4, 5),
    Sketcher.Constraint("Equal", 5, 6),
    Sketcher.Constraint("Equal", 6, 7),
    Sketcher.Constraint("Equal", 7, 8),
    Sketcher.Constraint("Equal", 8, 9),
    Sketcher.Constraint("Symmetric", 3, 3, 4, 3, -2),
    Sketcher.Constraint("Symmetric", 5, 3, 7, 3, -2),
    Sketcher.Constraint("Symmetric", 1, 3, 8, 3, -2),
    Sketcher.Constraint("Symmetric", 6, 3, 9, 3, -2),
    Sketcher.Constraint("PointOnObject", 0, 3, -2),
    Sketcher.Constraint("PointOnObject", 2, 3, -2),
    Sketcher.Constraint("Diameter", 0, Q("3 mm")),
    Sketcher.Constraint("DistanceX", 1, 3, -1, 1, Q("25 mm")),
    Sketcher.Constraint("DistanceY", 1, 3, 0, 3, Q("48 mm")),
    Sketcher.Constraint("DistanceY", 2, 3, 1, 3, Q("68 mm")),
    Sketcher.Constraint("DistanceY", 3, 3, 1, 3, Q("10 mm")),
    Sketcher.Constraint("DistanceY", -1, 1, 0, 3, Q("38.5 mm")),
    Sketcher.Constraint("DistanceX", 3, 3, -1, 1, Q("79.647662 mm")),
    Sketcher.Constraint("DistanceX", 6, 3, -1, 1, Q("28.045652 mm")),
    Sketcher.Constraint("DistanceX", 3, 3, 5, 3, Q("36.629429 mm")),
    Sketcher.Constraint("DistanceY", -1, 1, 5, 3, Q("61.436403 mm")),
    Sketcher.Constraint("DistanceY", 6, 3, -1, 1, Q("77.054795 mm")),
])
doc.recompute()
hole2 = body.newObject("PartDesign::Hole", "Hole001")
hole2.Profile = sketch7
hole2.ThreadType = "None"
hole2.Diameter = 3
hole2.DepthType = "Dimension"
hole2.Depth = 9.5
hole2.DrillPoint = "Angled"
hole2.DrillPointAngle = 118
hole2.HoleCutType = "Countersink"
hole2.HoleCutDiameter = 5.6
hole2.HoleCutCountersinkAngle = 90

# Sketch on XY plane
sketch8 = body.newObject("Sketcher::SketchObject", "Sketch007")
sketch8.AttachmentSupport = (doc.getObject("XY_Plane"), [""])
sketch8.MapMode = "FlatFace"
sketch8.AttachmentOffset = App.Placement(Vector(0, 0, 2), App.Rotation())
sketch8.addGeometry([
    Part.Circle(Vector(-71, 23.5, 0), Vector(0, 0, 1), 1.5),  # 0
    Part.Circle(Vector(-71, -23.5, 0), Vector(0, 0, 1), 1.5),  # 1
    Part.Circle(Vector(-31, -66, 0), Vector(0, 0, 1), 1.5),  # 2
    Part.Circle(Vector(-37.7, -74, 0), Vector(0, 0, 1), 1.5),  # 3
    Part.Circle(Vector(-31, 66, 0), Vector(0, 0, 1), 1.5),  # 4
    Part.Circle(Vector(31, 66, 0), Vector(0, 0, 1), 1.5),  # 5
    Part.Circle(Vector(71, 23.5, 0), Vector(0, 0, 1), 1.5),  # 6
    Part.Circle(Vector(31, -66, 0), Vector(0, 0, 1), 1.5),  # 7
    Part.Circle(Vector(71, -23.5, 0), Vector(0, 0, 1), 1.5),  # 8
    Part.Circle(Vector(37.7, -74, 0), Vector(0, 0, 1), 1.5),  # 9
], False)
sketch8.addConstraint([
    Sketcher.Constraint("Equal", 0, 1),
    Sketcher.Constraint("Equal", 1, 2),
    Sketcher.Constraint("Equal", 2, 3),
    Sketcher.Constraint("Equal", 3, 4),
    Sketcher.Constraint("Equal", 4, 5),
    Sketcher.Constraint("Equal", 5, 6),
    Sketcher.Constraint("Equal", 6, 7),
    Sketcher.Constraint("Equal", 7, 8),
    Sketcher.Constraint("Equal", 8, 9),
    Sketcher.Constraint("Symmetric", 2, 3, 5, 3, -1, 1),
    Sketcher.Constraint("Symmetric", 1, 3, 6, 3, -1, 1),
    Sketcher.Constraint("Symmetric", 4, 3, 7, 3, -1, 1),
    Sketcher.Constraint("Symmetric", 0, 3, 8, 3, -1, 1),
    Sketcher.Constraint("Symmetric", 4, 3, 5, 3, -2),
    Sketcher.Constraint("Symmetric", 0, 3, 6, 3, -2),
    Sketcher.Constraint("Symmetric", 3, 3, 9, 3, -2),
    Sketcher.Constraint("Diameter", 0, Q("3 mm")),
    Sketcher.Constraint("DistanceX", 0, 3, -1, 1, Q("71 mm")),
    Sketcher.Constraint("DistanceX", 2, 3, -1, 1, Q("31 mm")),
    Sketcher.Constraint("DistanceY", 2, 3, -1, 1, Q("66 mm")),
    Sketcher.Constraint("DistanceY", 1, 3, 0, 3, Q("47 mm")),
    Sketcher.Constraint("DistanceX", 3, 3, -1, 1, Q("37.681211 mm")),
    Sketcher.Constraint("DistanceY", 3, 3, -1, 1, Q("73.953542 mm")),
])
doc.recompute()
hole3 = body.newObject("PartDesign::Hole", "Hole002")
hole3.Profile = sketch8
hole3.ThreadType = "None"
hole3.Diameter = 3
hole3.DepthType = "Dimension"
hole3.Depth = 3
hole3.DrillPoint = "Angled"
hole3.DrillPointAngle = 118
doc.recompute()

fillet = body.newObject("PartDesign::Fillet", "Fillet")
fillet.Base = (hole3, edges_at(hole3, [
    (48.836, 72, 1),
    (-40, -69.282, 1),
    (-75.175, -27.362, 1),
    (-40, -27.362, 1),
    (41.569, 27.362, 1),
    (41.569, 56.569, 1),
    (56.569, 56.569, 1),
    (75.175, 27.362, 1),
    (40, -27.362, 1),
    (75.175, -27.362, 1),
    (40, -69.282, 1),
    (-75.175, 27.362, 1),
    (-56.569, 56.569, 1),
    (-41.569, 56.569, 1),
    (-41.569, 27.362, 1),
    (-48.836, 72, 1),
    (21.5, 35, 1),
    (21.5, -74, 1),
    (-21.5, -74, 1),
    (-21.5, 35, 1),
]))
fillet.Radius = 2

doc.recompute()
